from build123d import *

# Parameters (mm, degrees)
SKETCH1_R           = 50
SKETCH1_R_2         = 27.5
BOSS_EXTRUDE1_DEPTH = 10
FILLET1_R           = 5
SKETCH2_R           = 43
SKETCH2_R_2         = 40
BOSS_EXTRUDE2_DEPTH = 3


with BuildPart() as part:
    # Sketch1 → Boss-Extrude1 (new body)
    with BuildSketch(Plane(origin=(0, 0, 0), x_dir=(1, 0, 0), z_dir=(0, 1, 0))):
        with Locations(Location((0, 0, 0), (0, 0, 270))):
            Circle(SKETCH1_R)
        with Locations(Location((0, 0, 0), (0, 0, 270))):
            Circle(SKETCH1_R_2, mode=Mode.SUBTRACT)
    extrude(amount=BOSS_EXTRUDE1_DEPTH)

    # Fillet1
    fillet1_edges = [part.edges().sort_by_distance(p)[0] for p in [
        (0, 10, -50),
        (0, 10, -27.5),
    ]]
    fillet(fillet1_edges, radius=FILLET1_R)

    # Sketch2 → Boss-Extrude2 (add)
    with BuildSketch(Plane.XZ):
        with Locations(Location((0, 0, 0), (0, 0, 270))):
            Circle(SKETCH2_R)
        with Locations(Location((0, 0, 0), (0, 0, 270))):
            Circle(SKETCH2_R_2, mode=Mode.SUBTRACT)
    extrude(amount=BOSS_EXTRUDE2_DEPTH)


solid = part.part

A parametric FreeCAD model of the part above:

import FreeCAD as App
import Part
import Sketcher
from FreeCAD import Vector
Q = App.Units.Quantity


def edges_at(feature, points):
    """Names of the edges that pass closest to the given points."""
    edges = feature.Shape.Edges
    near = lambda p: min(range(len(edges)), key=lambda i: edges[i].distToShape(Part.Vertex(*p))[0])
    return sorted({f"Edge{near(p) + 1}" for p in points})

doc = App.newDocument("Part")
body = doc.addObject("PartDesign::Body", "Body")

# Sketch on XZ plane
sketch1 = body.newObject("Sketcher::SketchObject", "Sketch")
sketch1.AttachmentSupport = (doc.getObject("XZ_Plane"), [""])
sketch1.MapMode = "FlatFace"
sketch1.addGeometry([
    Part.Circle(Vector(0, 0, 0), Vector(0, 0, 1), 50),
    Part.Circle(Vector(0, 0, 0), Vector(0, 0, 1), 28),
], False)
sketch1.addConstraint([
    Sketcher.Constraint("Coincident", 0, 3, -1, 1),
    Sketcher.Constraint("Coincident", 1, 3, -1, 1),
    Sketcher.Constraint("Diameter", 0, Q("100 mm")),
    Sketcher.Constraint("Diameter", 1, Q("55 mm")),
])
pad1 = body.newObject("PartDesign::Pad", "Pad")
pad1.Profile = sketch1
pad1.Length = 10
pad1.Reversed = True
doc.recompute()

fillet = body.newObject("PartDesign::Fillet", "Fillet")
fillet.Base = (pad1, edges_at(pad1, [(0, 10, -50), (0, 10, -27.5)]))
fillet.Radius = 5

# Sketch on XZ plane
sketch2 = body.newObject("Sketcher::SketchObject", "Sketch001")
sketch2.AttachmentSupport = (doc.getObject("XZ_Plane"), [""])
sketch2.MapMode = "FlatFace"
sketch2.addGeometry([
    Part.Circle(Vector(0, 0, 0), Vector(0, 0, 1), 43),
    Part.Circle(Vector(0, 0, 0), Vector(0, 0, 1), 40),
], False)
sketch2.addConstraint([
    Sketcher.Constraint("Coincident", 0, 3, -1, 1),
    Sketcher.Constraint("Coincident", 1, 3, -1, 1),
    Sketcher.Constraint("Diameter", 0, Q("86 mm")),
    Sketcher.Constraint("Diameter", 1, Q("80 mm")),
])
pad2 = body.newObject("PartDesign::Pad", "Pad001")
pad2.Profile = sketch2
pad2.Length = 3

doc.recompute()
